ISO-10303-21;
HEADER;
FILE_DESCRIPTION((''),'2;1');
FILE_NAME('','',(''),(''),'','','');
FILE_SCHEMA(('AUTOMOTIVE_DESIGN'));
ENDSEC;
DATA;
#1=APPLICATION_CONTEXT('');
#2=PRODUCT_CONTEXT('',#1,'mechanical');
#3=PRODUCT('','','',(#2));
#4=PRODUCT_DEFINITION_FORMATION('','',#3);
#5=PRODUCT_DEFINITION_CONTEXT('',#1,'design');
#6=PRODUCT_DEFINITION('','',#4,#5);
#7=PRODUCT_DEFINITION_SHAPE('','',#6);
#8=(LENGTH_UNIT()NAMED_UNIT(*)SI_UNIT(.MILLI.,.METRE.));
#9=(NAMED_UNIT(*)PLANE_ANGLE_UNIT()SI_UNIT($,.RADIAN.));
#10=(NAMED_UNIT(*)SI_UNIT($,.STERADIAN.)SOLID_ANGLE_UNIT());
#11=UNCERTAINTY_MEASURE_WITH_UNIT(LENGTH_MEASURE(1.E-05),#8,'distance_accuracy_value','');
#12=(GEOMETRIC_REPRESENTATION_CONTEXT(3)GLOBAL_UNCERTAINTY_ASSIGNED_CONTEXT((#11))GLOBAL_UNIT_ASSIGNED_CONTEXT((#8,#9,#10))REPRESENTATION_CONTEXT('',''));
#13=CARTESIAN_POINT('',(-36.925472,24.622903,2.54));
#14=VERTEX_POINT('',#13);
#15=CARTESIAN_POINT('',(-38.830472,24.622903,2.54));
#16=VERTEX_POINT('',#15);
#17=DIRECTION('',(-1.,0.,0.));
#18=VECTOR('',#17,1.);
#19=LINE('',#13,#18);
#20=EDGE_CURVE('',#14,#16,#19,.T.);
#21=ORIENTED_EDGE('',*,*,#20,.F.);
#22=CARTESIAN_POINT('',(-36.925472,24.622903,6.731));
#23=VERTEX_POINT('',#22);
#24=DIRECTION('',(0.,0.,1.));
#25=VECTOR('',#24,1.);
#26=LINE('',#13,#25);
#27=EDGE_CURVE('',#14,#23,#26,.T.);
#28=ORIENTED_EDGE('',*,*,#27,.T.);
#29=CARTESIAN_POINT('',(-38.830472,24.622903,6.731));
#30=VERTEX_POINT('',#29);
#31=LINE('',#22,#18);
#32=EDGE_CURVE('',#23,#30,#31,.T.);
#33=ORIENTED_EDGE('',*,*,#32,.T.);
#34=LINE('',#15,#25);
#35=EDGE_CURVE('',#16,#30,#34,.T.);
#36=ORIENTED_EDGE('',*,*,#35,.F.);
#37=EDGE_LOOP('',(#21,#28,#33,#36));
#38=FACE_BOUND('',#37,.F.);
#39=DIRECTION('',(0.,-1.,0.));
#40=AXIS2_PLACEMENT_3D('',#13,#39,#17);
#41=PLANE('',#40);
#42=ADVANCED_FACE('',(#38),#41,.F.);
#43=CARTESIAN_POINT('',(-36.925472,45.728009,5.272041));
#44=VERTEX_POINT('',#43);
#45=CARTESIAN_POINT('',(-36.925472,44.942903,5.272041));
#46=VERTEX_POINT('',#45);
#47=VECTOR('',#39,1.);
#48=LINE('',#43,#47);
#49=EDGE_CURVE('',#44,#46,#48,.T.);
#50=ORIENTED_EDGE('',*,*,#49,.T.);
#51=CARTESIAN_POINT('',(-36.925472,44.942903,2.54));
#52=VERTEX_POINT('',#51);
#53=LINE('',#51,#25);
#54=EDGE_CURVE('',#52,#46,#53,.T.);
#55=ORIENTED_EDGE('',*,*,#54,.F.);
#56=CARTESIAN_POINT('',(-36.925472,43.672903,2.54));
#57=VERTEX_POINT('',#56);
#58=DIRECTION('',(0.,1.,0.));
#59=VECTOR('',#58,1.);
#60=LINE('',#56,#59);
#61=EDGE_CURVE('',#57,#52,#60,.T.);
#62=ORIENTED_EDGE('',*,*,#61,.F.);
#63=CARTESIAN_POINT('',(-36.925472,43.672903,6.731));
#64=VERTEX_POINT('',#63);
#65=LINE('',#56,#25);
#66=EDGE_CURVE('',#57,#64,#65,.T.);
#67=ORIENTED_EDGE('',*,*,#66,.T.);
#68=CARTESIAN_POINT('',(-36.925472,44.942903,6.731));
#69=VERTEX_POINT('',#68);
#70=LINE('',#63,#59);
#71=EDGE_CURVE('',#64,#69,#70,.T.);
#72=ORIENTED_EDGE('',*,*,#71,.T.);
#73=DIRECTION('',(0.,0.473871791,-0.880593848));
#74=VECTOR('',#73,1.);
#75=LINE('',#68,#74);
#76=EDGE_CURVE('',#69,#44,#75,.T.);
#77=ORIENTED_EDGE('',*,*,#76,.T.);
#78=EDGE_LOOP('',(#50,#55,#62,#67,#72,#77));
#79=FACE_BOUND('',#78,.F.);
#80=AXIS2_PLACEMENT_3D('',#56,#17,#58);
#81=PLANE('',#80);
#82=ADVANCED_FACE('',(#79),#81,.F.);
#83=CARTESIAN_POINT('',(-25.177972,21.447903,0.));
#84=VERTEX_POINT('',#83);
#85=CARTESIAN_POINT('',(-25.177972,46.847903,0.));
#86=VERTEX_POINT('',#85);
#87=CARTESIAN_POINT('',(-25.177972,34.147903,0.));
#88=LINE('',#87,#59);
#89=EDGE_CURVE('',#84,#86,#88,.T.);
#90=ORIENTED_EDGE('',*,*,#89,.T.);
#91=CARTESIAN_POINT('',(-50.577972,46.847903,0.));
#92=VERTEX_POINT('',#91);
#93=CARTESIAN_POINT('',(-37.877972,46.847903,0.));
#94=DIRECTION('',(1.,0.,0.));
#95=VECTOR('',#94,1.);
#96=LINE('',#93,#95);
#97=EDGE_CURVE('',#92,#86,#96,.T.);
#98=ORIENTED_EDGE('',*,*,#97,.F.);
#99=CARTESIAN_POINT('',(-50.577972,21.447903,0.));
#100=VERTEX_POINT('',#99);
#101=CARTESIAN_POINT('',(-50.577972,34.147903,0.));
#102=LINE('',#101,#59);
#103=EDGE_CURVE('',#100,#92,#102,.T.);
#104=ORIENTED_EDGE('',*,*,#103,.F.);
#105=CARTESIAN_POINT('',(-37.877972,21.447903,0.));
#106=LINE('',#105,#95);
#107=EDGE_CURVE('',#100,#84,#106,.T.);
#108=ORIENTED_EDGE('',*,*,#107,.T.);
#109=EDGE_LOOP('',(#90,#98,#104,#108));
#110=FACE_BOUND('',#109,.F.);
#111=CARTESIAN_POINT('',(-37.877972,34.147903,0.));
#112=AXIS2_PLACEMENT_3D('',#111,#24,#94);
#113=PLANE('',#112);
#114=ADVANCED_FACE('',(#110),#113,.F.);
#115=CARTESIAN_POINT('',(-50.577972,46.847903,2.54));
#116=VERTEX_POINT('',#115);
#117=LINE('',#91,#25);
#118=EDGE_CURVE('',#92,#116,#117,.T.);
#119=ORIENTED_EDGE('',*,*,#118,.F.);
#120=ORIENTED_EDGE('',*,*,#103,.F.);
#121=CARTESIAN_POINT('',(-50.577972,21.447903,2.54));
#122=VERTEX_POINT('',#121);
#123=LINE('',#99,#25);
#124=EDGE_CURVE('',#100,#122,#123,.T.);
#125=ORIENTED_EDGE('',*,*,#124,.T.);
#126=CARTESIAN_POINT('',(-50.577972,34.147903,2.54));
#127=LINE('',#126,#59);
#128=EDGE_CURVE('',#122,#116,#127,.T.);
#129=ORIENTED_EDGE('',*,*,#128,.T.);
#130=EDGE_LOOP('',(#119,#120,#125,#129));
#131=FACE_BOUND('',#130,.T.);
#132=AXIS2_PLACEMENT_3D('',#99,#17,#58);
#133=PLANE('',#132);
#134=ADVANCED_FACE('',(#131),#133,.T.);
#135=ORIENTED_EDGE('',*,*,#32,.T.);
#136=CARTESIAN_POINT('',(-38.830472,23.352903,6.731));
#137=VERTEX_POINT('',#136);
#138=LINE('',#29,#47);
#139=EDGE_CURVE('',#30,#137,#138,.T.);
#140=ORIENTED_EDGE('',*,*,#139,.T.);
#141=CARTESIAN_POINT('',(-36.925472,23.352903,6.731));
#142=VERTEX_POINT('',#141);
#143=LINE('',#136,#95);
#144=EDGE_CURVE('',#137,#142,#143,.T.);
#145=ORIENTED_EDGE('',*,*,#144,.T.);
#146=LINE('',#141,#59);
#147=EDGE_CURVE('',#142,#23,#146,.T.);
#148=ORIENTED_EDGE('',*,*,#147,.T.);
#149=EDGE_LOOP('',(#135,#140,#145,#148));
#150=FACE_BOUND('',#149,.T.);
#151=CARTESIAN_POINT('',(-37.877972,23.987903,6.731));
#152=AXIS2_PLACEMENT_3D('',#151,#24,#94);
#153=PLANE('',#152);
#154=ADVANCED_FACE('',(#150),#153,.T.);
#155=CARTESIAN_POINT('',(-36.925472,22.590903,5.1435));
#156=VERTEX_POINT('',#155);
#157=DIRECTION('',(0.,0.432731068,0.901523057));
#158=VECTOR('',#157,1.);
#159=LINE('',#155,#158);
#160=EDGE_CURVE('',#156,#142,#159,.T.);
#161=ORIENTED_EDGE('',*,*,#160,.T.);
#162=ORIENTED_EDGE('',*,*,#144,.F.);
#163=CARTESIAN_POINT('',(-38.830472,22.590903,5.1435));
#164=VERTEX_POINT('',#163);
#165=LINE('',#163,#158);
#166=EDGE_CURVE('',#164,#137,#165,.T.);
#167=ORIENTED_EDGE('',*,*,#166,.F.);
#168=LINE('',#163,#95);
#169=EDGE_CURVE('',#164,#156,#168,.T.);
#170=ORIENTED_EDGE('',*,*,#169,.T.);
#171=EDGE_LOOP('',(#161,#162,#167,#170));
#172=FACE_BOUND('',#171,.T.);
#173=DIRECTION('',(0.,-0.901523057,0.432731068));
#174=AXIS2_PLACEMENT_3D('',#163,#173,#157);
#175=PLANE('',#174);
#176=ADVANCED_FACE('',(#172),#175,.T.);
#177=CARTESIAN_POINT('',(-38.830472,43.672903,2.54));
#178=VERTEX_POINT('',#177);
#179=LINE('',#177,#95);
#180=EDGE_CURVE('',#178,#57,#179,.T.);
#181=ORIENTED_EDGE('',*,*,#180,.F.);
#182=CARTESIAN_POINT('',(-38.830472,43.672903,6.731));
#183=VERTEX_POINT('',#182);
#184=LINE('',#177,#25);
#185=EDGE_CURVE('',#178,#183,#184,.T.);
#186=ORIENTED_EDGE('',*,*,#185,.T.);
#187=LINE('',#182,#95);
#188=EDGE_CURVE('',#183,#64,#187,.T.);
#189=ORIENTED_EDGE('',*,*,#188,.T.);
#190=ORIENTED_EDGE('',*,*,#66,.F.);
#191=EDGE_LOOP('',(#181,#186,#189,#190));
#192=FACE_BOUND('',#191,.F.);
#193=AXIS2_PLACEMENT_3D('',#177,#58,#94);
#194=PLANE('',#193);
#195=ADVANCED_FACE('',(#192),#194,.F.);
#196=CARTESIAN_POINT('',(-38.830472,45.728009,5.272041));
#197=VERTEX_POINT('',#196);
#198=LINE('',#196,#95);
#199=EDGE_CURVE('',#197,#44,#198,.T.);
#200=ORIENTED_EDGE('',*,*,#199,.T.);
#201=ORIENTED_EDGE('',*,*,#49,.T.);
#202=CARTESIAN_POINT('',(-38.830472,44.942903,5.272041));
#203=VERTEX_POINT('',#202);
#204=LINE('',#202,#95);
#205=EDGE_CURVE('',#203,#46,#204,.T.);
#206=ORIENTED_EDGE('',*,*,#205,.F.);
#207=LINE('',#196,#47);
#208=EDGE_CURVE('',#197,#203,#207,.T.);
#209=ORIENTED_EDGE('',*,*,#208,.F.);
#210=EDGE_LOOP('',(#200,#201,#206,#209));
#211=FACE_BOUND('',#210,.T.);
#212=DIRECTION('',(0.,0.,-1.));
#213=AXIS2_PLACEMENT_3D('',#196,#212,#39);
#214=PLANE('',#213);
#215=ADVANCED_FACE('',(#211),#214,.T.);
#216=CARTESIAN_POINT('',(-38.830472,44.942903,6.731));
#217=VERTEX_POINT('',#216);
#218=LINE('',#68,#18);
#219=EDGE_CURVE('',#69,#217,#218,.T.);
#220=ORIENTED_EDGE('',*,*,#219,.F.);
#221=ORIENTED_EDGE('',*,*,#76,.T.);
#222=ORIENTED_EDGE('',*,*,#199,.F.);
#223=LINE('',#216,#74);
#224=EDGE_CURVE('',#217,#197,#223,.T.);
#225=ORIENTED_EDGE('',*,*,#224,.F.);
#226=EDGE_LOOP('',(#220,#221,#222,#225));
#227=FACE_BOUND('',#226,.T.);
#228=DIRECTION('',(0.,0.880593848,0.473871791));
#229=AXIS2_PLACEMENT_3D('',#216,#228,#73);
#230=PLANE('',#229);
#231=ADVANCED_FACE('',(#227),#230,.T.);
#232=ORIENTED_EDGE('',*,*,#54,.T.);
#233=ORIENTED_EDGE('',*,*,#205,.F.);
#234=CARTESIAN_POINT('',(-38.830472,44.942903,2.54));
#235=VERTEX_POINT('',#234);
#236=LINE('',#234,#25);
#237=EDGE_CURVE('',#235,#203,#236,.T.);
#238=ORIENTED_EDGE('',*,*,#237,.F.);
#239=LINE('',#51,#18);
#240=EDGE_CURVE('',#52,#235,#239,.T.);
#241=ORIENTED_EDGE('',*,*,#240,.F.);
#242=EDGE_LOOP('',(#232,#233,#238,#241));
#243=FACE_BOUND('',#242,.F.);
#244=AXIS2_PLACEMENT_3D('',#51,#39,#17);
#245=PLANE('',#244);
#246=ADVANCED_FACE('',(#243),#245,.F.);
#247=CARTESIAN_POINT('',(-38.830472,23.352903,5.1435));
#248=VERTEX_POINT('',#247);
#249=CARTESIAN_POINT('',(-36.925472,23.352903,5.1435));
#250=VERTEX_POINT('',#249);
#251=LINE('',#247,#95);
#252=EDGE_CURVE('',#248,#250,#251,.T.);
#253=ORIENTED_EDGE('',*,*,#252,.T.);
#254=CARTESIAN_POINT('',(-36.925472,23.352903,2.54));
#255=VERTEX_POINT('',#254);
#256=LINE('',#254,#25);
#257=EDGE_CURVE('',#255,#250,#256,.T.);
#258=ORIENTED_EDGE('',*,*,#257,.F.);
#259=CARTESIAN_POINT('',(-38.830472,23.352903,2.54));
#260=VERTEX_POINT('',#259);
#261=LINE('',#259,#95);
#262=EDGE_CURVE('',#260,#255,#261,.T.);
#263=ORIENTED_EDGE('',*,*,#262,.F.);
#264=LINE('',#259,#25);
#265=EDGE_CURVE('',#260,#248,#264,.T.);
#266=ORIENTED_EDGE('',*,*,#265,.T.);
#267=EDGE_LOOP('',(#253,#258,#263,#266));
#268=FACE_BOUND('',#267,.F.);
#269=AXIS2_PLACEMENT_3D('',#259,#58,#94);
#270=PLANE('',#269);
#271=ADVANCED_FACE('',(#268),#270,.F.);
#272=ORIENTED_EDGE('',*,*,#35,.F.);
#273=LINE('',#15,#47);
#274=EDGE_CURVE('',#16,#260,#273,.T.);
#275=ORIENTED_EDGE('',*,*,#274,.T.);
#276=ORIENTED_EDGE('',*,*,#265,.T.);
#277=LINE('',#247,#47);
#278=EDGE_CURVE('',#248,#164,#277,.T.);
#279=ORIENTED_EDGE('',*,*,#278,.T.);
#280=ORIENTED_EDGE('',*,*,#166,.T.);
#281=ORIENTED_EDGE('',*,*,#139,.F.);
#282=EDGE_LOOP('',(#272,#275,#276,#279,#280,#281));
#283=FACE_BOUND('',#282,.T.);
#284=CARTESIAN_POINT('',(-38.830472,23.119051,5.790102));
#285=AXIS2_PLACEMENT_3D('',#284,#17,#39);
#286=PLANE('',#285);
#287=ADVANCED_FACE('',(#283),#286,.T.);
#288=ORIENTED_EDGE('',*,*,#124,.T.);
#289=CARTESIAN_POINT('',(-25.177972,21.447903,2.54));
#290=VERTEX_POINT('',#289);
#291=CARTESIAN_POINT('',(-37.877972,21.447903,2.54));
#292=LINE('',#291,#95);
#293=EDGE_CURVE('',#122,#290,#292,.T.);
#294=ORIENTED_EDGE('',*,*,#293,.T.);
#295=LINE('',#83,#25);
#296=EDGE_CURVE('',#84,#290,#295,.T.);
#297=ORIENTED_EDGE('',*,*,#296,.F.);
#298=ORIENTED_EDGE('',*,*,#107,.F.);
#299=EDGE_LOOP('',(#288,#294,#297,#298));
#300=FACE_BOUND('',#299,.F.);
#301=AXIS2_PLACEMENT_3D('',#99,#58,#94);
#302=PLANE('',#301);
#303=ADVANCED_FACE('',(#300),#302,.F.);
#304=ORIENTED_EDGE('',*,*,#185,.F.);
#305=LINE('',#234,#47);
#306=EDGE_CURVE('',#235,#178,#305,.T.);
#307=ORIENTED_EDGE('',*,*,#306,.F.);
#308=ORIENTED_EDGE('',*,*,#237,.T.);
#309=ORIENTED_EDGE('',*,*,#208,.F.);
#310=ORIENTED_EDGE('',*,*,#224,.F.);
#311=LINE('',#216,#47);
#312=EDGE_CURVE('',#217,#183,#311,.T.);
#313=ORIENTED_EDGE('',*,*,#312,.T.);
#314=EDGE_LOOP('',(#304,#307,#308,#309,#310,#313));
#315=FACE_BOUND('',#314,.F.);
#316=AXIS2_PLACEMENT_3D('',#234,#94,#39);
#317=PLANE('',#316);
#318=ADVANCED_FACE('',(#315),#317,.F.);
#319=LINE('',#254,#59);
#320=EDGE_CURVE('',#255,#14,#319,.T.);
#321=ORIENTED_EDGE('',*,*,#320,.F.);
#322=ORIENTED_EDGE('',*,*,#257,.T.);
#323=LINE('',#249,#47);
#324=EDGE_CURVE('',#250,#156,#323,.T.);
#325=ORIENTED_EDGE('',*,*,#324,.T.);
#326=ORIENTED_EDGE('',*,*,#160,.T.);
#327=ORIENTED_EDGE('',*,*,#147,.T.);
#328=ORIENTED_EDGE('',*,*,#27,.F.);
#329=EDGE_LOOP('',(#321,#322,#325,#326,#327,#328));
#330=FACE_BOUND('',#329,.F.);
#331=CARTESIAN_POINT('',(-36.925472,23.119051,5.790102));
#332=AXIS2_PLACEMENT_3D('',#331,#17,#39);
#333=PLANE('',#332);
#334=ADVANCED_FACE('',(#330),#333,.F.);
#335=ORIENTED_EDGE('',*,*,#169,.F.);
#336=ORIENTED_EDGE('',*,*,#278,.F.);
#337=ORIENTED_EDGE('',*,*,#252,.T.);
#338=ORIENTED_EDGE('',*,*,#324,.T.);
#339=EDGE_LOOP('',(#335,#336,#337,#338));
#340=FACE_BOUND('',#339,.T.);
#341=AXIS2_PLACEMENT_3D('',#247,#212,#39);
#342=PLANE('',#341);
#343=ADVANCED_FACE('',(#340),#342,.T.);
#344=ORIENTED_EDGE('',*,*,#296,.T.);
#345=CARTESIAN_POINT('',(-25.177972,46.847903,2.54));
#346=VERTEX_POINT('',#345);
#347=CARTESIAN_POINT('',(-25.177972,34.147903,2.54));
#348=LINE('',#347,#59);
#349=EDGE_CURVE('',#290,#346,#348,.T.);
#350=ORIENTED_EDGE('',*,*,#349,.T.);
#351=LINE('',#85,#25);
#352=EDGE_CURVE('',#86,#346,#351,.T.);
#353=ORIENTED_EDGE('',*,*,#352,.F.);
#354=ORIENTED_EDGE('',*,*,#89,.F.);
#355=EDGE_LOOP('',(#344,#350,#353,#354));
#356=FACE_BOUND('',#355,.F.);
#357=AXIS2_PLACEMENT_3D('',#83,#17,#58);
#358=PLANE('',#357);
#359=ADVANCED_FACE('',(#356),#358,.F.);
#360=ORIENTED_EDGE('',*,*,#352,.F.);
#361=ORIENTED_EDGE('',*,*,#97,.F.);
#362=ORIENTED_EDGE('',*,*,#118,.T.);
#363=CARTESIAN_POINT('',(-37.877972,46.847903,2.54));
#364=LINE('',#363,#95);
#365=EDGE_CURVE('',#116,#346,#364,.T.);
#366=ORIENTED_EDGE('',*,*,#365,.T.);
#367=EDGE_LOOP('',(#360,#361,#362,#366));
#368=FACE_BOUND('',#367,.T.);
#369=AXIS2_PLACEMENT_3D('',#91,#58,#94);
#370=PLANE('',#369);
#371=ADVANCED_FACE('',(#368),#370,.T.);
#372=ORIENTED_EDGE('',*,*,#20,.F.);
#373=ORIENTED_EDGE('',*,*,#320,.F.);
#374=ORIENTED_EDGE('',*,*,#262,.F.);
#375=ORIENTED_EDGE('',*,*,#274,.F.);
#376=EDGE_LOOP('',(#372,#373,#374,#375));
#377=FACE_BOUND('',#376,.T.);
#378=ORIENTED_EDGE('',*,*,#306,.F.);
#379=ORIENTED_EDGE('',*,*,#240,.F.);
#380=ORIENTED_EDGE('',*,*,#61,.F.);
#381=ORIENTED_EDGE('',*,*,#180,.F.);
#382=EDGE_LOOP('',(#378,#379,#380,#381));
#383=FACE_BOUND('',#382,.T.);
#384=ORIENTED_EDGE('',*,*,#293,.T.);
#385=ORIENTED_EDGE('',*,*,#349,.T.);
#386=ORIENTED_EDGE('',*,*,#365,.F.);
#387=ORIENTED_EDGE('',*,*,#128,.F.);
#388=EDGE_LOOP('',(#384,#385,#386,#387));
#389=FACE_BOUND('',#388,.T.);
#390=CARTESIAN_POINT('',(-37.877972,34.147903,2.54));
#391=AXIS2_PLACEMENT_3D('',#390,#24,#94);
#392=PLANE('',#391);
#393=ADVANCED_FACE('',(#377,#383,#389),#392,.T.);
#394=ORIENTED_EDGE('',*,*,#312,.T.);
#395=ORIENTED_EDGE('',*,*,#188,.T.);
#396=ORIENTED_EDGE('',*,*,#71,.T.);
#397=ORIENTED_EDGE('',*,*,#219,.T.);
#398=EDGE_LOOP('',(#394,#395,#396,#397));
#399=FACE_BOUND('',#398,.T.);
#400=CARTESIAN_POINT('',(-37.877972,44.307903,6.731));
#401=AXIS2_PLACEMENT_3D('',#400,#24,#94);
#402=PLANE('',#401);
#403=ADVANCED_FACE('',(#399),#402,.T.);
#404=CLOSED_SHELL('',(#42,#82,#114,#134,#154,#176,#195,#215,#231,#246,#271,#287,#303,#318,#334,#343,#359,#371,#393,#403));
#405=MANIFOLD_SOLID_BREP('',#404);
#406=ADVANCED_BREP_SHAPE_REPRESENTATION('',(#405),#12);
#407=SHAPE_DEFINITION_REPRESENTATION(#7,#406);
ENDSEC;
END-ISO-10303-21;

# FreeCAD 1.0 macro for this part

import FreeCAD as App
import Part
import Sketcher

V = App.Vector
Q = App.Units.Quantity

doc = App.newDocument("Part")
body = doc.addObject("PartDesign::Body", "Body")

# Sketch on XY plane
sketch1 = doc.addObject("Sketcher::SketchObject", "Sketch")
body.addObject(sketch1)
sketch1.AttachmentSupport = (doc.XY_Plane, [""])
sketch1.MapMode = "FlatFace"
sketch1.addGeometry(Part.LineSegment(V(-51, 47, 0), V(-51, 21, 0)), False)
sketch1.addGeometry(Part.LineSegment(V(-51, 21, 0), V(-25, 21, 0)), False)
sketch1.addGeometry(Part.LineSegment(V(-25, 21, 0), V(-25, 47, 0)), False)
sketch1.addGeometry(Part.LineSegment(V(-25, 47, 0), V(-51, 47, 0)), False)
sketch1.addConstraint(Sketcher.Constraint("Coincident", 0, 2, 1, 1))
sketch1.addConstraint(Sketcher.Constraint("Coincident", 1, 2, 2, 1))
sketch1.addConstraint(Sketcher.Constraint("Coincident", 2, 2, 3, 1))
sketch1.addConstraint(Sketcher.Constraint("Coincident", 3, 2, 0, 1))
sketch1.addConstraint(Sketcher.Constraint("Vertical", 0))
sketch1.addConstraint(Sketcher.Constraint("Horizontal", 1))
sketch1.addConstraint(Sketcher.Constraint("Vertical", 2))
sketch1.addConstraint(Sketcher.Constraint("Horizontal", 3))
sketch1.addConstraint(Sketcher.Constraint("Equal", 3, 0))
sketch1.addConstraint(Sketcher.Constraint("DistanceX", 1, 1, 1, 2, Q("1 in")))
sketch1.addConstraint(Sketcher.Constraint("DistanceX", 0, 2, -1, 1, Q("50.577972 mm")))
sketch1.addConstraint(Sketcher.Constraint("DistanceY", -1, 1, 0, 2, Q("21.447903 mm")))
pad1 = doc.addObject("PartDesign::Pad", "Pad")
body.addObject(pad1)
pad1.Profile = sketch1
pad1.Length = Q("0.1 in")

# Sketch on XY plane
sketch2 = doc.addObject("Sketcher::SketchObject", "Sketch001")
body.addObject(sketch2)
sketch2.AttachmentSupport = (doc.XY_Plane, [""])
sketch2.MapMode = "FlatFace"
sketch2.AttachmentOffset = App.Placement(V(0, 0, 0.1 * 25.4), App.Rotation())
sketch2.addGeometry(Part.LineSegment(V(-38.8, 24.6, 0), V(-38.8, 23.4, 0)), False)
sketch2.addGeometry(Part.LineSegment(V(-38.8, 23.4, 0), V(-36.9, 23.4, 0)), False)
sketch2.addGeometry(Part.LineSegment(V(-36.9, 23.4, 0), V(-36.9, 24.6, 0)), False)
sketch2.addGeometry(Part.LineSegment(V(-36.9, 24.6, 0), V(-38.8, 24.6, 0)), False)
sketch2.addConstraint(Sketcher.Constraint("Coincident", 0, 2, 1, 1))
sketch2.addConstraint(Sketcher.Constraint("Coincident", 1, 2, 2, 1))
sketch2.addConstraint(Sketcher.Constraint("Coincident", 2, 2, 3, 1))
sketch2.addConstraint(Sketcher.Constraint("Coincident", 3, 2, 0, 1))
sketch2.addConstraint(Sketcher.Constraint("Vertical", 0))
sketch2.addConstraint(Sketcher.Constraint("Horizontal", 1))
sketch2.addConstraint(Sketcher.Constraint("Vertical", 2))
sketch2.addConstraint(Sketcher.Constraint("Horizontal", 3))
sketch2.addConstraint(Sketcher.Constraint("DistanceY", 0, 2, 0, 1, Q("0.05 in")))
sketch2.addConstraint(Sketcher.Constraint("DistanceX", 1, 1, 1, 2, Q("0.075 in")))
sketch2.addConstraint(Sketcher.Constraint("DistanceX", 0, 2, -1, 1, Q("38.830472 mm")))
sketch2.addConstraint(Sketcher.Constraint("DistanceY", -1, 1, 0, 2, Q("23.352903 mm")))
pad2 = doc.addObject("PartDesign::Pad", "Pad001")
body.addObject(pad2)
pad2.Profile = sketch2
pad2.Length = Q("0.165 in")

# Sketch on XY plane
sketch3 = doc.addObject("Sketcher::SketchObject", "Sketch002")
body.addObject(sketch3)
sketch3.AttachmentSupport = (doc.XY_Plane, [""])
sketch3.MapMode = "FlatFace"
sketch3.AttachmentOffset = App.Placement(V(0, 0, 0.1 * 25.4), App.Rotation())
sketch3.addGeometry(Part.LineSegment(V(-36.9, 44.9, 0), V(-38.8, 44.9, 0)), False)
sketch3.addGeometry(Part.LineSegment(V(-38.8, 44.9, 0), V(-38.8, 43.7, 0)), False)
sketch3.addGeometry(Part.LineSegment(V(-38.8, 43.7, 0), V(-36.9, 43.7, 0)), False)
sketch3.addGeometry(Part.LineSegment(V(-36.9, 43.7, 0), V(-36.9, 44.9, 0)), False)
sketch3.addConstraint(Sketcher.Constraint("Coincident", 0, 2, 1, 1))
sketch3.addConstraint(Sketcher.Constraint("Coincident", 1, 2, 2, 1))
sketch3.addConstraint(Sketcher.Constraint("Coincident", 2, 2, 3, 1))
sketch3.addConstraint(Sketcher.Constraint("Coincident", 3, 2, 0, 1))
sketch3.addConstraint(Sketcher.Constraint("Horizontal", 0))
sketch3.addConstraint(Sketcher.Constraint("Vertical", 1))
sketch3.addConstraint(Sketcher.Constraint("Horizontal", 2))
sketch3.addConstraint(Sketcher.Constraint("Vertical", 3))
sketch3.addConstraint(Sketcher.Constraint("DistanceY", 1, 2, 1, 1, Q("0.05 in")))
sketch3.addConstraint(Sketcher.Constraint("DistanceX", 0, 2, 0, 1, Q("0.075 in")))
sketch3.addConstraint(Sketcher.Constraint("DistanceX", 0, 2, -1, 1, Q("38.830472 mm")))
sketch3.addConstraint(Sketcher.Constraint("DistanceY", -1, 1, 0, 2, Q("44.942903 mm")))
pad3 = doc.addObject("PartDesign::Pad", "Pad002")
body.addObject(pad3)
pad3.Profile = sketch3
pad3.Length = Q("0.165 in")

# Sketch on YZ plane
sketch4 = doc.addObject("Sketcher::SketchObject", "Sketch003")
body.addObject(sketch4)
sketch4.AttachmentSupport = (doc.YZ_Plane, [""])
sketch4.MapMode = "FlatFace"
sketch4.AttachmentOffset = App.Placement(V(0, 0, -38.830472), App.Rotation())
sketch4.addGeometry(Part.LineSegment(V(23.4, 6.7, 0), V(23.4, 5.1, 0)), False)
sketch4.addGeometry(Part.LineSegment(V(23.4, 5.1, 0), V(22.6, 5.1, 0)), False)
sketch4.addGeometry(Part.LineSegment(V(22.6, 5.1, 0), V(23.4, 6.7, 0)), False)
sketch4.addGeometry(Part.LineSegment(V(45.7, 5.3, 0), V(44.9, 5.3, 0)), False)
sketch4.addGeometry(Part.LineSegment(V(44.9, 5.3, 0), V(44.9, 6.7, 0)), False)
sketch4.addGeometry(Part.LineSegment(V(44.9, 6.7, 0), V(45.7, 5.3, 0)), False)
sketch4.addConstraint(Sketcher.Constraint("Coincident", 0, 2, 1, 1))
sketch4.addConstraint(Sketcher.Constraint("Coincident", 1, 2, 2, 1))
sketch4.addConstraint(Sketcher.Constraint("Coincident", 2, 2, 0, 1))
sketch4.addConstraint(Sketcher.Constraint("Coincident", 3, 2, 4, 1))
sketch4.addConstraint(Sketcher.Constraint("Coincident", 4, 2, 5, 1))
sketch4.addConstraint(Sketcher.Constraint("Coincident", 5, 2, 3, 1))
sketch4.addConstraint(Sketcher.Constraint("Vertical", 0))
sketch4.addConstraint(Sketcher.Constraint("Horizontal", 1))
sketch4.addConstraint(Sketcher.Constraint("Horizontal", 3))
sketch4.addConstraint(Sketcher.Constraint("Vertical", 4))
sketch4.addConstraint(Sketcher.Constraint("Horizontal", 2, 2, 4, 2))
sketch4.addConstraint(Sketcher.Constraint("DistanceX", 1, 2, 1, 1, Q("0.03 in")))
sketch4.addConstraint(Sketcher.Constraint("DistanceY", 0, 2, 0, 1, Q("0.0625 in")))
sketch4.addConstraint(Sketcher.Constraint("DistanceX", 0, 2, 3, 2, Q("0.85 in")))
sketch4.addConstraint(Sketcher.Constraint("DistanceY", -1, 1, 2, 2, Q("0.265 in")))
sketch4.addConstraint(Sketcher.Constraint("DistanceY", 4, 1, 4, 2, Q("1.458959 mm")))
sketch4.addConstraint(Sketcher.Constraint("Distance", 5, Q("1.65679 mm")))
sketch4.addConstraint(Sketcher.Constraint("DistanceX", -1, 1, 5, 2, Q("45.728009 mm")))
pad4 = doc.addObject("PartDesign::Pad", "Pad003")
body.addObject(pad4)
pad4.Profile = sketch4
pad4.Length = Q("0.075 in")

doc.recompute()
